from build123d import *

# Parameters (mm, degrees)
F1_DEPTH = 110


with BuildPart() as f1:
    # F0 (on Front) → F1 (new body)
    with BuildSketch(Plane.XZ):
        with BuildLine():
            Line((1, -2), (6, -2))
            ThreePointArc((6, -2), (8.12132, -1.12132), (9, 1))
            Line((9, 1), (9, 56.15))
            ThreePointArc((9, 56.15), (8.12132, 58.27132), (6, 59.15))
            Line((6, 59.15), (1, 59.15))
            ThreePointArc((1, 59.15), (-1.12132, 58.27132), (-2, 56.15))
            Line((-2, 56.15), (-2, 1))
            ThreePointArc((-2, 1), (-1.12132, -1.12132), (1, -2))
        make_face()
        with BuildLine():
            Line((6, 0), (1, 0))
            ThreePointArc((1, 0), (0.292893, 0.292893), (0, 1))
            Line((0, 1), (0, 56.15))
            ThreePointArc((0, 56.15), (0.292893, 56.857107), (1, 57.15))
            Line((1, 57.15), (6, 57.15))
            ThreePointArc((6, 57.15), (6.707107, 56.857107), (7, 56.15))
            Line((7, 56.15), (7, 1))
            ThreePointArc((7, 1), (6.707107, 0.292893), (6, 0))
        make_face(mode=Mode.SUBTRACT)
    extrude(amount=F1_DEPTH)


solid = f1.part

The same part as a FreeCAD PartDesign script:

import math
import FreeCAD as App
import Part
import Sketcher
from FreeCAD import Vector
Q = App.Units.Quantity

doc = App.newDocument("Part")
body = doc.addObject("PartDesign::Body", "Body")

sketch1 = body.newObject("Sketcher::SketchObject", "Sketch")
sketch1.AttachmentSupport = (doc.getObject("XZ_Plane"), [""])
sketch1.MapMode = "FlatFace"
sketch1.addGeometry(Part.LineSegment(Vector(1, -2, 0), Vector(6, -2, 0)), False)
sketch1.addGeometry(Part.ArcOfCircle(Part.Circle(Vector(6, 1, 0), Vector(0, 0, 1), 3), math.radians(-90), math.radians(0)), False)
sketch1.addGeometry(Part.LineSegment(Vector(9, 1, 0), Vector(9, 56.1, 0)), False)
sketch1.addGeometry(Part.ArcOfCircle(Part.Circle(Vector(6, 56.1, 0), Vector(0, 0, 1), 3), math.radians(0), math.radians(90)), False)
sketch1.addGeometry(Part.LineSegment(Vector(6, 59.1, 0), Vector(1, 59.1, 0)), False)
sketch1.addGeometry(Part.ArcOfCircle(Part.Circle(Vector(1, 56.1, 0), Vector(0, 0, 1), 3), math.radians(90), math.radians(180)), False)
sketch1.addGeometry(Part.LineSegment(Vector(-2, 56.1, 0), Vector(-2, 1, 0)), False)
sketch1.addGeometry(Part.ArcOfCircle(Part.Circle(Vector(1, 1, 0), Vector(0, 0, 1), 3), math.radians(-180), math.radians(-90)), False)
sketch1.addGeometry(Part.ArcOfCircle(Part.Circle(Vector(6, 1, 0), Vector(0, 0, 1), 1), math.radians(-90), math.radians(0)), False)
sketch1.addGeometry(Part.LineSegment(Vector(6, 0, 0), Vector(1, 0, 0)), False)
sketch1.addGeometry(Part.ArcOfCircle(Part.Circle(Vector(1, 1, 0), Vector(0, 0, 1), 1), math.radians(180), math.radians(270)), False)
sketch1.addGeometry(Part.LineSegment(Vector(0, 1, 0), Vector(0, 56.1, 0)), False)
sketch1.addGeometry(Part.ArcOfCircle(Part.Circle(Vector(1, 56.2, 0), Vector(0, 0, 1), 1), math.radians(90), math.radians(180)), False)
sketch1.addGeometry(Part.LineSegment(Vector(1, 57.1, 0), Vector(6, 57.1, 0)), False)
sketch1.addGeometry(Part.ArcOfCircle(Part.Circle(Vector(6, 56.2, 0), Vector(0, 0, 1), 1), math.radians(0), math.radians(90)), False)
sketch1.addGeometry(Part.LineSegment(Vector(7, 56.1, 0), Vector(7, 1, 0)), False)
sketch1.addConstraint(Sketcher.Constraint("Tangent", 0, 2, 1, 1))
sketch1.addConstraint(Sketcher.Constraint("Tangent", 1, 2, 2, 1))
sketch1.addConstraint(Sketcher.Constraint("Tangent", 2, 2, 3, 1))
sketch1.addConstraint(Sketcher.Constraint("Tangent", 3, 2, 4, 1))
sketch1.addConstraint(Sketcher.Constraint("Tangent", 4, 2, 5, 1))
sketch1.addConstraint(Sketcher.Constraint("Tangent", 5, 2, 6, 1))
sketch1.addConstraint(Sketcher.Constraint("Tangent", 6, 2, 7, 1))
sketch1.addConstraint(Sketcher.Constraint("Tangent", 7, 2, 0, 1))
sketch1.addConstraint(Sketcher.Constraint("Tangent", 8, 1, 9, 1))
sketch1.addConstraint(Sketcher.Constraint("Tangent", 9, 2, 10, 2))
sketch1.addConstraint(Sketcher.Constraint("Tangent", 10, 1, 11, 1))
sketch1.addConstraint(Sketcher.Constraint("Tangent", 11, 2, 12, 2))
sketch1.addConstraint(Sketcher.Constraint("Tangent", 12, 1, 13, 1))
sketch1.addConstraint(Sketcher.Constraint("Tangent", 13, 2, 14, 2))
sketch1.addConstraint(Sketcher.Constraint("Tangent", 14, 1, 15, 1))
sketch1.addConstraint(Sketcher.Constraint("Tangent", 15, 2, 8, 2))
sketch1.addConstraint(Sketcher.Constraint("Horizontal", 0))
sketch1.addConstraint(Sketcher.Constraint("Vertical", 2))
sketch1.addConstraint(Sketcher.Constraint("Horizontal", 4))
sketch1.addConstraint(Sketcher.Constraint("Vertical", 6))
sketch1.addConstraint(Sketcher.Constraint("Horizontal", 9))
sketch1.addConstraint(Sketcher.Constraint("Vertical", 11))
sketch1.addConstraint(Sketcher.Constraint("Horizontal", 13))
sketch1.addConstraint(Sketcher.Constraint("Vertical", 15))
sketch1.addConstraint(Sketcher.Constraint("Coincident", 8, 3, 1, 3))
sketch1.addConstraint(Sketcher.Constraint("Coincident", 10, 3, 7, 3))
sketch1.addConstraint(Sketcher.Constraint("Coincident", 12, 3, 5, 3))
sketch1.addConstraint(Sketcher.Constraint("Equal", 1, 3))
sketch1.addConstraint(Sketcher.Constraint("Equal", 3, 5))
sketch1.addConstraint(Sketcher.Constraint("Equal", 5, 7))
sketch1.addConstraint(Sketcher.Constraint("Equal", 12, 14))
sketch1.addConstraint(Sketcher.Constraint("PointOnObject", 8, 1, -1))
sketch1.addConstraint(Sketcher.Constraint("PointOnObject", 10, 1, -2))
sketch1.addConstraint(Sketcher.Constraint("Radius", 1, Q("3.000001 mm")))
sketch1.addConstraint(Sketcher.Constraint("Radius", 8, Q("0.999999 mm")))
sketch1.addConstraint(Sketcher.Constraint("DistanceX", 0, 1, 0, 2, Q("5 mm")))
sketch1.addConstraint(Sketcher.Constraint("DistanceY", 2, 1, 2, 2, Q("55.15 mm")))
pad1 = body.newObject("PartDesign::Pad", "Pad")
pad1.Profile = sketch1
pad1.Length = 110

doc.recompute()
